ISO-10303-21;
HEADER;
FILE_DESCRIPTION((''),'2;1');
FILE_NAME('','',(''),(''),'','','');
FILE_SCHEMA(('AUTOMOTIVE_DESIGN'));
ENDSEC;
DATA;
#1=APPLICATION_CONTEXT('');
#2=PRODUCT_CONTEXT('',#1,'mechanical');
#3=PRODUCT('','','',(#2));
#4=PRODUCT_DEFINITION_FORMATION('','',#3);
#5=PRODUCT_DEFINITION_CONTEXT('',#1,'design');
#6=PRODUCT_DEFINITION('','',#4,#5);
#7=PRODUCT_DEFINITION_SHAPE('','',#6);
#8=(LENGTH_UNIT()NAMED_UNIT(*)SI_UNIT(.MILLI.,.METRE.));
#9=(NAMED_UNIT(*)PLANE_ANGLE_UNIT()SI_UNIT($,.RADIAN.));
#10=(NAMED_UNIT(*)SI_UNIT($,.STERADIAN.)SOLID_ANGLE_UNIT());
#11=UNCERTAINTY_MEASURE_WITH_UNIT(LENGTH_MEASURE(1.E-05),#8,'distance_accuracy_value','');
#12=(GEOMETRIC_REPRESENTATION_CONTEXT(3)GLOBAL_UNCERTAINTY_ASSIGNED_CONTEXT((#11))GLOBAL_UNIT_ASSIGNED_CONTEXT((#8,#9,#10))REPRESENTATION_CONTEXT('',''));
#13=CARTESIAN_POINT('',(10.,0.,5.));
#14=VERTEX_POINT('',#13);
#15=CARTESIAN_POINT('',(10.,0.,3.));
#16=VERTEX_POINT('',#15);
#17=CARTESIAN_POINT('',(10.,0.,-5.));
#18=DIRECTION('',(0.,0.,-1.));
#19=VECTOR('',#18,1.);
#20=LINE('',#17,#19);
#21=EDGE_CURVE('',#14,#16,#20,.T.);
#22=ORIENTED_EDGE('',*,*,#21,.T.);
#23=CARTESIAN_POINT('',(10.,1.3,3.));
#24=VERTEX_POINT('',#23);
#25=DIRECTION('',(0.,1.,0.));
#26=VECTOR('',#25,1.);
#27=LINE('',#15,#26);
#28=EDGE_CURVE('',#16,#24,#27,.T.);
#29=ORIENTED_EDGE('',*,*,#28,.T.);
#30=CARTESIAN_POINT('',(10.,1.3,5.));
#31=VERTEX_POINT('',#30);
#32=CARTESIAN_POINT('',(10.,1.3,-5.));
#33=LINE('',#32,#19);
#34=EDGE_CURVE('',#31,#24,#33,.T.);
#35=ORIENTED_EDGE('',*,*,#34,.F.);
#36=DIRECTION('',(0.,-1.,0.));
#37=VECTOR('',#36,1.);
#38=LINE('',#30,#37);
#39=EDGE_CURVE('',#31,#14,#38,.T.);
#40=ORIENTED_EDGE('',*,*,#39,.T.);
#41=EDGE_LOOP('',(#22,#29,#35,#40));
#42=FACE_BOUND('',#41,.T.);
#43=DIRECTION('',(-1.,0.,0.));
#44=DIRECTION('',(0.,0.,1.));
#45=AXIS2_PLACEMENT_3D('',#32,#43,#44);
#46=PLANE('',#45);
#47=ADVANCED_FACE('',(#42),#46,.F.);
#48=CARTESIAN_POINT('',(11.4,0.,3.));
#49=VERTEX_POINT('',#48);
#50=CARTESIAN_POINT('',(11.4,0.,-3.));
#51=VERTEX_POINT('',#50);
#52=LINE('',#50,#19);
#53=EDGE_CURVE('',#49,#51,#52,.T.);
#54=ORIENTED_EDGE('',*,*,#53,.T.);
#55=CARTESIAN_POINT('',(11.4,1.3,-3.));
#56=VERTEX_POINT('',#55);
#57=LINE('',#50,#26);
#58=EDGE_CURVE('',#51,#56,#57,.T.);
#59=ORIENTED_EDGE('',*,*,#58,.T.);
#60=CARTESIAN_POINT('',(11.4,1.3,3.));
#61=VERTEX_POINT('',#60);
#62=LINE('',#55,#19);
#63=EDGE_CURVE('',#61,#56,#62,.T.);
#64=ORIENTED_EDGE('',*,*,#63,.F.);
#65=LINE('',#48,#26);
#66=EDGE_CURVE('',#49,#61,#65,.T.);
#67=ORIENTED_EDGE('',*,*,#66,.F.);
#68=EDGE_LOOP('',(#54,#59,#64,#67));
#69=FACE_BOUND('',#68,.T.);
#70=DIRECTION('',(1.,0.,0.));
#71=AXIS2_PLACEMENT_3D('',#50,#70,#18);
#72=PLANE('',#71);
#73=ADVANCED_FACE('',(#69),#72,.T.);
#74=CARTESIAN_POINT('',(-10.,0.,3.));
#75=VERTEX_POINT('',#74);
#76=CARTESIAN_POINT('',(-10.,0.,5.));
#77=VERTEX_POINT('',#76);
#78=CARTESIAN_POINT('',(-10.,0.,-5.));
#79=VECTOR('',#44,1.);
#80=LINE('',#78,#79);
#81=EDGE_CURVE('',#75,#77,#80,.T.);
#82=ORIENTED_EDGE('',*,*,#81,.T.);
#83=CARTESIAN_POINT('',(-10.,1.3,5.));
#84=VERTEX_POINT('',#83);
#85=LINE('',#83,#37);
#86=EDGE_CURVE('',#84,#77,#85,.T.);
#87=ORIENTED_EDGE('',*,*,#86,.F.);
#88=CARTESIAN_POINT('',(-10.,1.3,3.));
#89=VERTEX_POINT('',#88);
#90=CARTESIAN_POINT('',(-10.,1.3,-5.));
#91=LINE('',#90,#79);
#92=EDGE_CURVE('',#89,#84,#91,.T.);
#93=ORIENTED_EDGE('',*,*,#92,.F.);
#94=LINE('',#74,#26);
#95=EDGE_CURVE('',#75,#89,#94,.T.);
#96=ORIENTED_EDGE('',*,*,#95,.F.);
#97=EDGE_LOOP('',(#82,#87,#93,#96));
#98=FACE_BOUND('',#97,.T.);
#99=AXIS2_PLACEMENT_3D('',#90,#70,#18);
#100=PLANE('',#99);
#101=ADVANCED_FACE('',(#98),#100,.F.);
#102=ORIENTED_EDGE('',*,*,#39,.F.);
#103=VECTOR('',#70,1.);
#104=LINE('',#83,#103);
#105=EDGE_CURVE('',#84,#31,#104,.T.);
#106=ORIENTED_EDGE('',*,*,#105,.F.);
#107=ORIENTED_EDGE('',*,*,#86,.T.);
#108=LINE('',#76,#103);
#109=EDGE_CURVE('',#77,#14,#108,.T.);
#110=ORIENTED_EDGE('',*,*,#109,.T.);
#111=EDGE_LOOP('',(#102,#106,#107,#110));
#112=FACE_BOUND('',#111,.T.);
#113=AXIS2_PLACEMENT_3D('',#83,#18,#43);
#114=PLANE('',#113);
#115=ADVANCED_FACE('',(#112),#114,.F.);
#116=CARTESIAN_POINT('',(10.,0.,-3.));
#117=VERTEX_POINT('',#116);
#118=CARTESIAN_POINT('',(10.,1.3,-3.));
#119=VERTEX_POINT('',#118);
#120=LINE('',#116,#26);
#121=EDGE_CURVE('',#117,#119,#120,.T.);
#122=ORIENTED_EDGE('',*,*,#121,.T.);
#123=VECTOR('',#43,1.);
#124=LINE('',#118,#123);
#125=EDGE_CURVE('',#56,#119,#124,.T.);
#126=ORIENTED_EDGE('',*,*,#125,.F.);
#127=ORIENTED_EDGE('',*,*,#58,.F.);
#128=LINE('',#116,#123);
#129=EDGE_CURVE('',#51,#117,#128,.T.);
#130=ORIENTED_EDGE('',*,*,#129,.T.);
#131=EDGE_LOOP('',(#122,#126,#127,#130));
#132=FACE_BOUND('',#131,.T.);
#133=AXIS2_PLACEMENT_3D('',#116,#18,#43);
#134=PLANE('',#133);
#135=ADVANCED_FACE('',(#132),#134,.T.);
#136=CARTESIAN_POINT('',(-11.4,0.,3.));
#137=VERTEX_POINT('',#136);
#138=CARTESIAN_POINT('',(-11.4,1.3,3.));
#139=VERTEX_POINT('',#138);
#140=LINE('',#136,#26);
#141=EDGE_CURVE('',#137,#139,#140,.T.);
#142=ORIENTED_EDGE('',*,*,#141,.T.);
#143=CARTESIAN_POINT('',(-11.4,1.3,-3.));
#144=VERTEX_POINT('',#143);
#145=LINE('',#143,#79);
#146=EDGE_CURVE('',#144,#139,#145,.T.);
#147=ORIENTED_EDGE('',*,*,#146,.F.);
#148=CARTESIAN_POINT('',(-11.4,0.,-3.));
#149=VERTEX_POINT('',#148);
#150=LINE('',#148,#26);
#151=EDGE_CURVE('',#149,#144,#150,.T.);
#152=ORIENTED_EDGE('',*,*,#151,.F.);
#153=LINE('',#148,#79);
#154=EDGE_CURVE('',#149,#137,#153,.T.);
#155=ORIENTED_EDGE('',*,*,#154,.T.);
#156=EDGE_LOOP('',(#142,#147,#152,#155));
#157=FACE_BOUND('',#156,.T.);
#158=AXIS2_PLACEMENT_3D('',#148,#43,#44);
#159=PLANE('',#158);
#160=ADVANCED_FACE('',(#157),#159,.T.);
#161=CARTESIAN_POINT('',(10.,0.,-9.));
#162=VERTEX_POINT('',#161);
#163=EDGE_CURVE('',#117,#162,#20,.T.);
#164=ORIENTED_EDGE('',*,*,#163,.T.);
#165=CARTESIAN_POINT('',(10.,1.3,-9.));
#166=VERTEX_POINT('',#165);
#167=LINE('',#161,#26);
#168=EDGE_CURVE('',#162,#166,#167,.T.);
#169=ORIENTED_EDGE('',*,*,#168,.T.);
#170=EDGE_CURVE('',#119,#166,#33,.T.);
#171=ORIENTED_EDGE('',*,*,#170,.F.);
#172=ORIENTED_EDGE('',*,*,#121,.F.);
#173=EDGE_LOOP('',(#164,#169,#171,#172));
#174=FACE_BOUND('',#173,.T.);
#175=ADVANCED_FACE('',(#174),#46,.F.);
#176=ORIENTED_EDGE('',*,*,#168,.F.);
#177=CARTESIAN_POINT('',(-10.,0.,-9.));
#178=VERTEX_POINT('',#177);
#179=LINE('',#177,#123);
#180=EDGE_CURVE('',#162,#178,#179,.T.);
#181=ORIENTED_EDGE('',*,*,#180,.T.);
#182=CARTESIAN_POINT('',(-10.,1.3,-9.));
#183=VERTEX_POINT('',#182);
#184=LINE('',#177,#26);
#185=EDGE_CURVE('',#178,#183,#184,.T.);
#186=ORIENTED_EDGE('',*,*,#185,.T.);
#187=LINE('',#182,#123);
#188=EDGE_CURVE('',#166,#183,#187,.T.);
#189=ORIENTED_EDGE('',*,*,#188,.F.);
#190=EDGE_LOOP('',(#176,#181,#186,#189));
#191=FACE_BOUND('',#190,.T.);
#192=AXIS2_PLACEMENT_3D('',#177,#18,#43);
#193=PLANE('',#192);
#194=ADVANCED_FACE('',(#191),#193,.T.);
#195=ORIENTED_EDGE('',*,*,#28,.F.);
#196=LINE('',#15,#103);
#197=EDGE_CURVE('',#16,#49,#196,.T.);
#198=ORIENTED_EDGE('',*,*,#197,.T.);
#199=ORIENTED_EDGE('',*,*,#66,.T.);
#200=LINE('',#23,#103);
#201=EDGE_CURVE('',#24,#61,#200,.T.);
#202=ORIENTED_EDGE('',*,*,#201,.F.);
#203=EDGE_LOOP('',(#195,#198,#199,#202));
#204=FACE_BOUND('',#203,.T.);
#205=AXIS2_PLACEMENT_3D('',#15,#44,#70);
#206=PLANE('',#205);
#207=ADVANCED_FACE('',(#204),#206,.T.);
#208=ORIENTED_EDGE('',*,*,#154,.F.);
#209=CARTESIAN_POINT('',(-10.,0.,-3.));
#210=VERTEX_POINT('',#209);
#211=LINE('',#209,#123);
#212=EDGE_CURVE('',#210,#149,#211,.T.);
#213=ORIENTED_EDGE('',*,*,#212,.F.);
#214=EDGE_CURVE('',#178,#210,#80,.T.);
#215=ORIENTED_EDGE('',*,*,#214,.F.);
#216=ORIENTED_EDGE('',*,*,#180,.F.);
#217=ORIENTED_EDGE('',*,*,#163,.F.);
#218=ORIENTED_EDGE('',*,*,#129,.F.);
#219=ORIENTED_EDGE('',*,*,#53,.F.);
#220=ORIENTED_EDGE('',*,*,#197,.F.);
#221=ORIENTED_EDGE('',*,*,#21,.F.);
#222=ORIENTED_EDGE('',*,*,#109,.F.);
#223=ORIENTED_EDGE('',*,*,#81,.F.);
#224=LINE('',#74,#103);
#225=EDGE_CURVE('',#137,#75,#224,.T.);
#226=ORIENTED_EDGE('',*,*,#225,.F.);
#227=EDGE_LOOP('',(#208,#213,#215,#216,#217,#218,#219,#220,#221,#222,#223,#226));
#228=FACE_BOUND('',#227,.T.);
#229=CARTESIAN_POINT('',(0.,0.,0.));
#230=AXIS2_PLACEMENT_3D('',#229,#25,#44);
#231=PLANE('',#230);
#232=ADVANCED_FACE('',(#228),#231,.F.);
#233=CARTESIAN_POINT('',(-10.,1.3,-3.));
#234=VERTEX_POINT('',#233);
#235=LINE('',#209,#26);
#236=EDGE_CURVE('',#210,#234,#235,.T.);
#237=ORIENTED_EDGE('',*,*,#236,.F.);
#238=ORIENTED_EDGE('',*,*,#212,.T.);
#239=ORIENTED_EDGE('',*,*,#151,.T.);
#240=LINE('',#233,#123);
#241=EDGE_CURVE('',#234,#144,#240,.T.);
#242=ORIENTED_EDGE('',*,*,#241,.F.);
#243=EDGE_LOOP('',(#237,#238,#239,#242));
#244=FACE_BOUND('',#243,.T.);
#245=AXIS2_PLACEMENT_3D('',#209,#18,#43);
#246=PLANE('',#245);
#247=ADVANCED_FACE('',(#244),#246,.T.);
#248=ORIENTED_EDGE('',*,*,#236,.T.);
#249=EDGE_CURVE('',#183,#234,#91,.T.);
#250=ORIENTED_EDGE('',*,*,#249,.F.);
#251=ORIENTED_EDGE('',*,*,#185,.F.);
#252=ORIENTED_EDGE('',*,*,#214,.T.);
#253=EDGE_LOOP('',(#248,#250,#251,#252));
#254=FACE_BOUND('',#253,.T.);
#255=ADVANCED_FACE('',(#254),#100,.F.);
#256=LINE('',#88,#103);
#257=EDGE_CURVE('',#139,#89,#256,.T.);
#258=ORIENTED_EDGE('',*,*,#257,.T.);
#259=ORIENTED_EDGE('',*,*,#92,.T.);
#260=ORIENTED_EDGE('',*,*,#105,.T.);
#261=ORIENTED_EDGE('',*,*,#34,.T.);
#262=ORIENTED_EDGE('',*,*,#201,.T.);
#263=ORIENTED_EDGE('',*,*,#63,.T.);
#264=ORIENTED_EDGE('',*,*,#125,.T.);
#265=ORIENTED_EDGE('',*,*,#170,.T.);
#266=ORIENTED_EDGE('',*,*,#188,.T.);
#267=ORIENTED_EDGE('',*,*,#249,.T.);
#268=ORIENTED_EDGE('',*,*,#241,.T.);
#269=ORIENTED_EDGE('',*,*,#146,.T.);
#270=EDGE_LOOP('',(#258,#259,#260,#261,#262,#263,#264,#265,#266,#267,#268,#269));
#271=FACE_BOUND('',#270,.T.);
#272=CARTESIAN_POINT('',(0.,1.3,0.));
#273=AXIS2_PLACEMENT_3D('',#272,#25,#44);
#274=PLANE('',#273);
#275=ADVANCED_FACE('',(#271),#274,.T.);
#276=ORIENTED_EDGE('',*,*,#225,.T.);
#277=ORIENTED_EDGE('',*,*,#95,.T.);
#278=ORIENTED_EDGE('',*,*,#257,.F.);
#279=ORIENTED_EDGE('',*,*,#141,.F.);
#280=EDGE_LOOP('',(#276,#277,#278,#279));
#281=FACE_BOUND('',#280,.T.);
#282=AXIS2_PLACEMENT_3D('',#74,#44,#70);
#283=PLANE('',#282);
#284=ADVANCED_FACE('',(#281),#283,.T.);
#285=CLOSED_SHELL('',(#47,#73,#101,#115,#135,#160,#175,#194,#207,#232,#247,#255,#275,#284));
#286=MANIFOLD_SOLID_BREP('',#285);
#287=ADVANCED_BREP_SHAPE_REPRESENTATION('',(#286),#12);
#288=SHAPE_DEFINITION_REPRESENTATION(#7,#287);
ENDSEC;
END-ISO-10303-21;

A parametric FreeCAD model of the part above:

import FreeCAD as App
import Part
import Sketcher
from FreeCAD import Vector
Q = App.Units.Quantity

doc = App.newDocument("Part")
body = doc.addObject("PartDesign::Body", "Body")

# Sketch on XZ plane
sketch1 = body.newObject("Sketcher::SketchObject", "Sketch")
sketch1.AttachmentSupport = (doc.getObject("XZ_Plane"), [""])
sketch1.MapMode = "FlatFace"
sketch1.addGeometry([
    Part.LineSegment(Vector(-10, -5, 0), Vector(-10, 5, 0)),
    Part.LineSegment(Vector(-10, 5, 0), Vector(10, 5, 0)),
    Part.LineSegment(Vector(10, 5, 0), Vector(10, -5, 0)),
    Part.LineSegment(Vector(10, -5, 0), Vector(-10, -5, 0)),
], False)
sketch1.addConstraint([
    Sketcher.Constraint("Coincident", 0, 2, 1, 1),
    Sketcher.Constraint("Coincident", 1, 2, 2, 1),
    Sketcher.Constraint("Coincident", 2, 2, 3, 1),
    Sketcher.Constraint("Coincident", 3, 2, 0, 1),
    Sketcher.Constraint("Vertical", 0),
    Sketcher.Constraint("Horizontal", 1),
    Sketcher.Constraint("Vertical", 2),
    Sketcher.Constraint("Horizontal", 3),
    Sketcher.Constraint("Symmetric", 0, 2, 2, 2, -1, 1),
    Sketcher.Constraint("DistanceX", 1, 1, 1, 2, Q("20 mm")),
    Sketcher.Constraint("DistanceY", 0, 1, 0, 2, Q("10 mm")),
])
pad1 = body.newObject("PartDesign::Pad", "Pad")
pad1.Profile = sketch1
pad1.Length = 1.3
pad1.Reversed = True

# Sketch on XZ plane
sketch2 = body.newObject("Sketcher::SketchObject", "Sketch001")
sketch2.AttachmentSupport = (doc.getObject("XZ_Plane"), [""])
sketch2.MapMode = "FlatFace"
sketch2.AttachmentOffset = App.Placement(Vector(0, 0, -1.3), App.Rotation())
sketch2.addGeometry([
    Part.LineSegment(Vector(-11.4, -3, 0), Vector(-11.4, 3, 0)),  # 0
    Part.LineSegment(Vector(-11.4, 3, 0), Vector(-10, 3, 0)),  # 1
    Part.LineSegment(Vector(-10, 3, 0), Vector(-10, -3, 0)),  # 2
    Part.LineSegment(Vector(-10, -3, 0), Vector(-11.4, -3, 0)),  # 3
    Part.LineSegment(Vector(10, -3, 0), Vector(10, 3, 0)),  # 4
    Part.LineSegment(Vector(10, 3, 0), Vector(11.4, 3, 0)),  # 5
    Part.LineSegment(Vector(11.4, 3, 0), Vector(11.4, -3, 0)),  # 6
    Part.LineSegment(Vector(11.4, -3, 0), Vector(10, -3, 0)),  # 7
], False)
sketch2.addConstraint([
    Sketcher.Constraint("Coincident", 0, 2, 1, 1),
    Sketcher.Constraint("Coincident", 1, 2, 2, 1),
    Sketcher.Constraint("Coincident", 2, 2, 3, 1),
    Sketcher.Constraint("Coincident", 3, 2, 0, 1),
    Sketcher.Constraint("Coincident", 4, 2, 5, 1),
    Sketcher.Constraint("Coincident", 5, 2, 6, 1),
    Sketcher.Constraint("Coincident", 6, 2, 7, 1),
    Sketcher.Constraint("Coincident", 7, 2, 4, 1),
    Sketcher.Constraint("Vertical", 0),
    Sketcher.Constraint("Horizontal", 1),
    Sketcher.Constraint("Vertical", 2),
    Sketcher.Constraint("Horizontal", 3),
    Sketcher.Constraint("Vertical", 4),
    Sketcher.Constraint("Horizontal", 5),
    Sketcher.Constraint("Vertical", 6),
    Sketcher.Constraint("Horizontal", 7),
    Sketcher.Constraint("Symmetric", 2, 2, 4, 2, -1, 1),
    Sketcher.Constraint("Symmetric", 0, 2, 6, 2, -1, 1),
    Sketcher.Constraint("Horizontal", 1, 2, 4, 2),
    Sketcher.Constraint("DistanceY", 0, 1, 0, 2, Q("6 mm")),
    Sketcher.Constraint("DistanceX", 1, 1, 1, 2, Q("1.4 mm")),
    Sketcher.Constraint("DistanceX", 1, 2, -1, 1, Q("10 mm")),
])
pad2 = body.newObject("PartDesign::Pad", "Pad001")
pad2.Profile = sketch2
pad2.Length = 1.3

# Sketch on XZ plane
sketch3 = body.newObject("Sketcher::SketchObject", "Sketch002")
sketch3.AttachmentSupport = (doc.getObject("XZ_Plane"), [""])
sketch3.MapMode = "FlatFace"
sketch3.AttachmentOffset = App.Placement(Vector(0, 0, -1.3), App.Rotation())
sketch3.addGeometry([
    Part.LineSegment(Vector(-10, -9, 0), Vector(-10, -5, 0)),
    Part.LineSegment(Vector(-10, -5, 0), Vector(10, -5, 0)),
    Part.LineSegment(Vector(10, -5, 0), Vector(10, -9, 0)),
    Part.LineSegment(Vector(10, -9, 0), Vector(-10, -9, 0)),
], False)
sketch3.addConstraint([
    Sketcher.Constraint("Coincident", 0, 2, 1, 1),
    Sketcher.Constraint("Coincident", 1, 2, 2, 1),
    Sketcher.Constraint("Coincident", 2, 2, 3, 1),
    Sketcher.Constraint("Coincident", 3, 2, 0, 1),
    Sketcher.Constraint("Vertical", 0),
    Sketcher.Constraint("Horizontal", 1),
    Sketcher.Constraint("Vertical", 2),
    Sketcher.Constraint("Horizontal", 3),
    Sketcher.Constraint("DistanceX", 1, 1, 1, 2, Q("20 mm")),
    Sketcher.Constraint("DistanceY", 0, 1, 0, 2, Q("4 mm")),
    Sketcher.Constraint("DistanceX", 0, 2, -1, 1, Q("10 mm")),
    Sketcher.Constraint("DistanceY", 0, 2, -1, 1, Q("5 mm")),
])
pad3 = body.newObject("PartDesign::Pad", "Pad002")
pad3.Profile = sketch3
pad3.Length = 1.3

doc.recompute()
